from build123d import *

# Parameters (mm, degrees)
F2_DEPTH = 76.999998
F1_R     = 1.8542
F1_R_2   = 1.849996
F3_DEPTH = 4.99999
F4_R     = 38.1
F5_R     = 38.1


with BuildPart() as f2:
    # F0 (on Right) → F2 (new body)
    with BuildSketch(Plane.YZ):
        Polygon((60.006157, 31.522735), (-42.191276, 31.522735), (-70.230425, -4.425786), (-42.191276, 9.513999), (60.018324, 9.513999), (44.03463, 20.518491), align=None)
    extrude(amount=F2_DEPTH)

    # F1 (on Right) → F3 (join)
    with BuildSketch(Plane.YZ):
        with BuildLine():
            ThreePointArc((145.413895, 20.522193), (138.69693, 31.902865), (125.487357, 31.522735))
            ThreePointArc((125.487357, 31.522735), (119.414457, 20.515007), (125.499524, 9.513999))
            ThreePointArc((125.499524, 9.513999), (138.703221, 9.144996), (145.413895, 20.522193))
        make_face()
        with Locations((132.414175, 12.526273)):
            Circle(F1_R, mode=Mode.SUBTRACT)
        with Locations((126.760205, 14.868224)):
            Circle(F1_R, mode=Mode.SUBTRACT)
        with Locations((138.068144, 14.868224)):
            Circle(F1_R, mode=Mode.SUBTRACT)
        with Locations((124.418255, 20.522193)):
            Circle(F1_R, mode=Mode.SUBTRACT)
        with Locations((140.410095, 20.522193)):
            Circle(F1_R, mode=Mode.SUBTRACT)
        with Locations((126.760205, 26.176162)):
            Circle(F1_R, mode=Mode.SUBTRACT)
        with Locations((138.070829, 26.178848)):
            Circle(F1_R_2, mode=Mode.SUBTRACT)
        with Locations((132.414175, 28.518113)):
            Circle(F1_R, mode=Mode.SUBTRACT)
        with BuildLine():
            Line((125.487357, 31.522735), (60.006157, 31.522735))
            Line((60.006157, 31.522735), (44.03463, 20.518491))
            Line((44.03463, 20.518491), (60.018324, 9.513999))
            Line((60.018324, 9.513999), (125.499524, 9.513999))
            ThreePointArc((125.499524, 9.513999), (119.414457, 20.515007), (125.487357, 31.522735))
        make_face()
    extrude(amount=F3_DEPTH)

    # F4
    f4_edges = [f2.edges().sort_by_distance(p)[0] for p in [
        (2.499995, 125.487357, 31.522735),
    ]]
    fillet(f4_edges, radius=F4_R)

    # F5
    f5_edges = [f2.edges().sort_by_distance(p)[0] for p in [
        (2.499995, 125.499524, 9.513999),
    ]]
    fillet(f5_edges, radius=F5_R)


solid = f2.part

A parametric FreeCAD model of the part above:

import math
import FreeCAD as App
import Part
import Sketcher
from FreeCAD import Vector
Q = App.Units.Quantity


def edges_at(feature, points):
    """Names of the edges that pass closest to the given points."""
    edges = feature.Shape.Edges
    near = lambda p: min(range(len(edges)), key=lambda i: edges[i].distToShape(Part.Vertex(*p))[0])
    return sorted({f"Edge{near(p) + 1}" for p in points})


def add_polygon(sketch, points):
    """Adds a closed chain of lines whose ends are joined by coincident constraints."""
    first, n = sketch.GeometryCount, len(points)
    for a, b in zip(points, points[1:] + points[:1]):
        sketch.addGeometry(Part.LineSegment(App.Vector(*a, 0), App.Vector(*b, 0)), False)
    for i in range(n):
        sketch.addConstraint(Sketcher.Constraint("Coincident", first + i, 2, first + (i + 1) % n, 1))

doc = App.newDocument("Part")
body = doc.addObject("PartDesign::Body", "Body")

sketch1 = body.newObject("Sketcher::SketchObject", "Sketch")
sketch1.AttachmentSupport = (doc.getObject("YZ_Plane"), [""])
sketch1.MapMode = "FlatFace"
add_polygon(sketch1, [(60, 32), (-42, 32), (-70, -4), (-42, 10), (60, 10), (44, 21)])
sketch1.addConstraint(Sketcher.Constraint("Horizontal", 0))
sketch1.addConstraint(Sketcher.Constraint("Horizontal", 3))
sketch1.addConstraint(Sketcher.Constraint("Vertical", 0, 2, 2, 2))
sketch1.addConstraint(Sketcher.Constraint("DistanceX", 3, 1, 3, 2, Q("4.024 in")))
sketch1.addConstraint(Sketcher.Constraint("Distance", 4, Q("0.764 in")))
sketch1.addConstraint(Sketcher.Constraint("Distance", 1, Q("1.7949 in")))
sketch1.addConstraint(Sketcher.Constraint("Distance", 2, Q("1.2328 in")))
sketch1.addConstraint(Sketcher.Constraint("Distance", 5, Q("0.7636 in")))
sketch1.addConstraint(Sketcher.Constraint("DistanceY", -1, 1, 2, 2, 9.513999))
sketch1.addConstraint(Sketcher.Constraint("DistanceX", 0, 2, 0, 1, 102.197433))
sketch1.addConstraint(Sketcher.Constraint("DistanceX", -1, 1, 4, 2, 44.03463))
sketch1.addConstraint(Sketcher.Constraint("DistanceY", -1, 1, 4, 2, 20.518491))
pad1 = body.newObject("PartDesign::Pad", "Pad")
pad1.Profile = sketch1
pad1.Length = 76.999998

sketch2 = body.newObject("Sketcher::SketchObject", "Sketch001")
sketch2.AttachmentSupport = (doc.getObject("YZ_Plane"), [""])
sketch2.MapMode = "FlatFace"
sketch2.addGeometry(Part.ArcOfCircle(Part.Circle(Vector(132.4, 20.5, 0), Vector(0, 0, 1), 13), math.radians(0), math.radians(122)), False)
sketch2.addGeometry(Part.LineSegment(Vector(125.5, 31.5, 0), Vector(60, 31.5, 0)), False)
sketch2.addGeometry(Part.LineSegment(Vector(60, 31.5, 0), Vector(44, 20.5, 0)), False)
sketch2.addGeometry(Part.LineSegment(Vector(44, 20.5, 0), Vector(60, 9.5, 0)), False)
sketch2.addGeometry(Part.LineSegment(Vector(60, 9.5, 0), Vector(125.5, 9.5, 0)), False)
sketch2.addGeometry(Part.ArcOfCircle(Part.Circle(Vector(132.4, 20.5, 0), Vector(0, 0, 1), 13), math.radians(-122), math.radians(0)), False)
sketch2.addGeometry(Part.Circle(Vector(126.8, 14.9, 0), Vector(0, 0, 1), 1.9), False)
sketch2.addGeometry(Part.Circle(Vector(132.4, 12.5, 0), Vector(0, 0, 1), 1.9), False)
sketch2.addGeometry(Part.Circle(Vector(138.1, 14.9, 0), Vector(0, 0, 1), 1.9), False)
sketch2.addGeometry(Part.Circle(Vector(124.4, 20.5, 0), Vector(0, 0, 1), 1.9), False)
sketch2.addGeometry(Part.Circle(Vector(126.8, 26.2, 0), Vector(0, 0, 1), 1.9), False)
sketch2.addGeometry(Part.Circle(Vector(140.4, 20.5, 0), Vector(0, 0, 1), 1.9), False)
sketch2.addGeometry(Part.Circle(Vector(132.4, 28.5, 0), Vector(0, 0, 1), 1.9), False)
sketch2.addGeometry(Part.Circle(Vector(138.1, 26.2, 0), Vector(0, 0, 1), 1.8), False)
sketch2.addConstraint(Sketcher.Constraint("Coincident", 0, 2, 1, 1))
sketch2.addConstraint(Sketcher.Constraint("Coincident", 1, 2, 2, 1))
sketch2.addConstraint(Sketcher.Constraint("Coincident", 2, 2, 3, 1))
sketch2.addConstraint(Sketcher.Constraint("Coincident", 3, 2, 4, 1))
sketch2.addConstraint(Sketcher.Constraint("Coincident", 4, 2, 5, 1))
sketch2.addConstraint(Sketcher.Constraint("Tangent", 5, 2, 0, 1))
sketch2.addConstraint(Sketcher.Constraint("Horizontal", 1))
sketch2.addConstraint(Sketcher.Constraint("Horizontal", 4))
sketch2.addConstraint(Sketcher.Constraint("Equal", 0, 5))
sketch2.addConstraint(Sketcher.Constraint("Equal", 6, 7))
sketch2.addConstraint(Sketcher.Constraint("Equal", 7, 8))
sketch2.addConstraint(Sketcher.Constraint("Equal", 8, 9))
sketch2.addConstraint(Sketcher.Constraint("Equal", 9, 10))
sketch2.addConstraint(Sketcher.Constraint("Equal", 10, 11))
sketch2.addConstraint(Sketcher.Constraint("Equal", 11, 12))
sketch2.addConstraint(Sketcher.Constraint("Horizontal", 6, 3, 8, 3))
sketch2.addConstraint(Sketcher.Constraint("Horizontal", 5, 3, 9, 3))
sketch2.addConstraint(Sketcher.Constraint("Horizontal", 9, 3, 11, 3))
sketch2.addConstraint(Sketcher.Constraint("Horizontal", 11, 3, 5, 2))
sketch2.addConstraint(Sketcher.Constraint("Vertical", 5, 3, 7, 3))
sketch2.addConstraint(Sketcher.Constraint("Vertical", 6, 3, 10, 3))
sketch2.addConstraint(Sketcher.Constraint("Vertical", 7, 3, 12, 3))
sketch2.addConstraint(Sketcher.Constraint("Equal", 1, 4))
sketch2.addConstraint(Sketcher.Constraint("Diameter", 6, Q("0.146 in")))
sketch2.addConstraint(Sketcher.Constraint("Radius", 0, Q("0.5118 in")))
sketch2.addConstraint(Sketcher.Constraint("DistanceX", 1, 2, 1, 1, Q("2.578 in")))
sketch2.addConstraint(Sketcher.Constraint("Distance", 3, Q("0.764 in")))
sketch2.addConstraint(Sketcher.Constraint("Diameter", 13, 3.699992))
sketch2.addConstraint(Sketcher.Constraint("DistanceX", 11, 3, 5, 2, Q("0.197 in")))
sketch2.addConstraint(Sketcher.Constraint("Distance", 2, Q("0.7636 in")))
sketch2.addConstraint(Sketcher.Constraint("DistanceY", 7, 3, 0, 3, Q("0.3148 in")))
sketch2.addConstraint(Sketcher.Constraint("DistanceX", 9, 3, 0, 3, Q("0.3148 in")))
sketch2.addConstraint(Sketcher.Constraint("DistanceY", 5, 3, 12, 3, Q("0.3148 in")))
sketch2.addConstraint(Sketcher.Constraint("DistanceY", 8, 3, 13, 3, Q("0.4453002 in")))
sketch2.addConstraint(Sketcher.Constraint("DistanceY", -1, 1, 3, 2, 9.513999))
sketch2.addConstraint(Sketcher.Constraint("DistanceX", 1, 2, 9, 3, 64.412098))
sketch2.addConstraint(Sketcher.Constraint("DistanceY", -1, 1, 0, 3, 20.522192))
sketch2.addConstraint(Sketcher.Constraint("DistanceX", -1, 1, 13, 3, 138.070829))
sketch2.addConstraint(Sketcher.Constraint("DistanceX", -1, 1, 2, 2, 44.03463))
sketch2.addConstraint(Sketcher.Constraint("DistanceX", 6, 3, 0, 3, 5.653969))
sketch2.addConstraint(Sketcher.Constraint("DistanceY", 6, 3, 5, 3, 5.65397))
sketch2.addConstraint(Sketcher.Constraint("DistanceX", 7, 3, 8, 3, 5.653969))
sketch2.addConstraint(Sketcher.Constraint("DistanceY", 9, 3, 10, 3, 5.653969))
pad2 = body.newObject("PartDesign::Pad", "Pad001")
pad2.Profile = sketch2
pad2.Length = 4.99999
doc.recompute()

fillet = body.newObject("PartDesign::Fillet", "Fillet")
fillet.Base = (pad2, edges_at(pad2, [(2.5, 125.487, 31.523)]))
fillet.Radius = Q("1.5 in")
doc.recompute()

fillet2 = body.newObject("PartDesign::Fillet", "Fillet001")
fillet2.Base = (fillet, edges_at(fillet, [(2.5, 125.5, 9.514)]))
fillet2.Radius = Q("1.5 in")

doc.recompute()
